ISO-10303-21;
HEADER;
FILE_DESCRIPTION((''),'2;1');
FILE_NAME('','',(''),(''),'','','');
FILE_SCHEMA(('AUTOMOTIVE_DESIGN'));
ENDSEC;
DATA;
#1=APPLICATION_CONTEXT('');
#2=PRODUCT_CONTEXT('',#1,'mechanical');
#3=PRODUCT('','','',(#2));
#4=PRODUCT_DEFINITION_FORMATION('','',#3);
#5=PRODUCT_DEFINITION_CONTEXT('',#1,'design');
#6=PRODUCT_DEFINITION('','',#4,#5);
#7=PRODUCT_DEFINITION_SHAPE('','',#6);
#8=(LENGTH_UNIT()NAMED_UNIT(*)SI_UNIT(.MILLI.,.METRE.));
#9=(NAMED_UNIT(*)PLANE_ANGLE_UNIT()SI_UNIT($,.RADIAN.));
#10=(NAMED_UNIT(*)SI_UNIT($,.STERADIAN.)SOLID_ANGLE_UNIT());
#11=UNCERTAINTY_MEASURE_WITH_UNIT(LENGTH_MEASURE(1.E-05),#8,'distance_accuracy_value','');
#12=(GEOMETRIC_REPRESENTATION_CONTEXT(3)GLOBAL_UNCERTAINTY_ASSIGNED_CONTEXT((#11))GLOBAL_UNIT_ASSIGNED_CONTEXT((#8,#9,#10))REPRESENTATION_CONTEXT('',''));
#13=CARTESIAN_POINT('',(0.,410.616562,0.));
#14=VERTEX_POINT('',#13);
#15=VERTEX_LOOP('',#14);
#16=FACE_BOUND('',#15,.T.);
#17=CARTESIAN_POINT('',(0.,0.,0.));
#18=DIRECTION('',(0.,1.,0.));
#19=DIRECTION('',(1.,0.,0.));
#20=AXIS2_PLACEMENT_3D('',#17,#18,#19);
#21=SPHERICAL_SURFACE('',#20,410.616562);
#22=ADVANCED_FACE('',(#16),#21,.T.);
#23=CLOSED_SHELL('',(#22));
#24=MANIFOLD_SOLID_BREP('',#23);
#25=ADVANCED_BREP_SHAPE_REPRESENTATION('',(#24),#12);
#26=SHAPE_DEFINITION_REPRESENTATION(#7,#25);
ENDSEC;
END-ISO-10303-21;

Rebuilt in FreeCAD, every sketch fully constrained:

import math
import FreeCAD as App
import Part
import Sketcher
from FreeCAD import Vector
Q = App.Units.Quantity

doc = App.newDocument("Part")
body = doc.addObject("PartDesign::Body", "Body")

sketch1 = body.newObject("Sketcher::SketchObject", "Sketch")
sketch1.AttachmentSupport = (doc.getObject("XY_Plane"), [""])
sketch1.MapMode = "FlatFace"
sketch1.addGeometry([
    Part.LineSegment(Vector(0, 411, 0), Vector(0, -411, 0)),
    Part.ArcOfCircle(Part.Circle(Vector(0, 0, 0), Vector(0, 0, 1), 411), math.radians(-90), math.radians(90)),
], False)
sketch1.addConstraint([
    Sketcher.Constraint("Coincident", 0, 1, 1, 2),
    Sketcher.Constraint("Coincident", 1, 1, 0, 2),
    Sketcher.Constraint("Vertical", 0),
    Sketcher.Constraint("Coincident", 1, 3, -1, 1),
    Sketcher.Constraint("PointOnObject", 0, 1, -2),
    Sketcher.Constraint("Radius", 1, Q("410.616562 mm")),
])
revolution = body.newObject("PartDesign::Revolution", "Revolution")
revolution.Profile = sketch1
revolution.ReferenceAxis = (sketch1, ["V_Axis"])
revolution.Angle = 360

doc.recompute()
